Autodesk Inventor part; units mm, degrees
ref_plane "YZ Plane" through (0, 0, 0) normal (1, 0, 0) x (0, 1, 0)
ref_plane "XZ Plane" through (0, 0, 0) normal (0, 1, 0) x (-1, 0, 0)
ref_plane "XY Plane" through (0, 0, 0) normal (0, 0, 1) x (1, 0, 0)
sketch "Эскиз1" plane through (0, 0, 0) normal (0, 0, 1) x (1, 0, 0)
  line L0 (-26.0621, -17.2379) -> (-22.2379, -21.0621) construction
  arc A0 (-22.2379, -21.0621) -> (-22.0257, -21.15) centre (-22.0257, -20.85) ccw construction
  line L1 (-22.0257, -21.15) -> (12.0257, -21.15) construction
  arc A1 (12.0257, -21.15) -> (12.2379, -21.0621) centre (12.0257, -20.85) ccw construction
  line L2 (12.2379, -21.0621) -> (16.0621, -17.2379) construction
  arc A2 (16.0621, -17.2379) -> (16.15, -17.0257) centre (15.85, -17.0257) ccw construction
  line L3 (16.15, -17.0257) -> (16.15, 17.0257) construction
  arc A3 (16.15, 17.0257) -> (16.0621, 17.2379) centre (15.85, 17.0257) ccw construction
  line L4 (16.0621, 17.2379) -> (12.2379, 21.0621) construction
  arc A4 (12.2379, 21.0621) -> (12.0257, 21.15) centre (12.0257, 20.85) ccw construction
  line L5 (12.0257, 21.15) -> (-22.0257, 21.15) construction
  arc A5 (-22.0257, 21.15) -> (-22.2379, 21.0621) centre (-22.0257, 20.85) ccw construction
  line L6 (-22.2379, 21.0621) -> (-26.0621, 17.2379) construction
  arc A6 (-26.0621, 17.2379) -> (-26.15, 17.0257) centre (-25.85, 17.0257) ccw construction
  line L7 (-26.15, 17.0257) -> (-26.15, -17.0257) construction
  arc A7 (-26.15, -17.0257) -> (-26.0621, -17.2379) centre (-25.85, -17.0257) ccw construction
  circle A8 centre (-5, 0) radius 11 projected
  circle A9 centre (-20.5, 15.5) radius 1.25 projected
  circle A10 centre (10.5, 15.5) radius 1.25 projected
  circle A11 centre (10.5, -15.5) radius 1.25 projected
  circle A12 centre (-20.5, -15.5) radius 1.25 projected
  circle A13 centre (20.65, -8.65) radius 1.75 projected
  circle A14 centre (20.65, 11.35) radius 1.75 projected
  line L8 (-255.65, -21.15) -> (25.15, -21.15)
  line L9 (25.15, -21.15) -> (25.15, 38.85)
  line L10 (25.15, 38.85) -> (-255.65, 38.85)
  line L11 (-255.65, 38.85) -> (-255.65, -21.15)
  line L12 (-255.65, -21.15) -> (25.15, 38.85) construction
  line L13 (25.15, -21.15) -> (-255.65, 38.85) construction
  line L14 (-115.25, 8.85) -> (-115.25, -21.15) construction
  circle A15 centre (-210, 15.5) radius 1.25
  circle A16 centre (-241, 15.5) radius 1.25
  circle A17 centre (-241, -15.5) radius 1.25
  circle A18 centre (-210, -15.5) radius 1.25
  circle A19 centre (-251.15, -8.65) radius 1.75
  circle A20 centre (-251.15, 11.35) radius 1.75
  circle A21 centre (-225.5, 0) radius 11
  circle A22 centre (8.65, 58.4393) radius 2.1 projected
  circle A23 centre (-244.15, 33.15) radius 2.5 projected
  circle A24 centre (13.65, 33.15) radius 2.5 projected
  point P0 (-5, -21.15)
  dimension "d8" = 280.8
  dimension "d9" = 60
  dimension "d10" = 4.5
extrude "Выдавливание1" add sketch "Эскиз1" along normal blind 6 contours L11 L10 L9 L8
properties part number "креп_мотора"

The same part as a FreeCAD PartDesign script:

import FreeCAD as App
import Part
import Sketcher

V = App.Vector

doc = App.newDocument("Part")
body = doc.addObject("PartDesign::Body", "Body")

sketch1 = body.newObject("Sketcher::SketchObject", "Sketch")
sketch1.AttachmentSupport = (doc.getObject("XY_Plane"), [""])
sketch1.MapMode = "FlatFace"
sketch1.addGeometry([
    Part.LineSegment(V(-255.7, 38.9, 0), V(-255.7, -21.1, 0)),
    Part.LineSegment(V(-255.7, -21.1, 0), V(25.1, -21.1, 0)),
    Part.LineSegment(V(25.1, -21.1, 0), V(25.1, 38.9, 0)),
    Part.LineSegment(V(25.1, 38.9, 0), V(-255.7, 38.9, 0)),
    Part.Circle(V(-241, -15.5, 0), V(0, 0, 1), 1.2),
    Part.Circle(V(-210, -15.5, 0), V(0, 0, 1), 1.2),
    Part.Circle(V(-251.2, -8.7, 0), V(0, 0, 1), 1.8),
    Part.Circle(V(-225.5, 0, 0), V(0, 0, 1), 11),
    Part.Circle(V(-251.2, 11.3, 0), V(0, 0, 1), 1.8),
    Part.Circle(V(-241, 15.5, 0), V(0, 0, 1), 1.2),
    Part.Circle(V(-210, 15.5, 0), V(0, 0, 1), 1.2),
    Part.Circle(V(-20.5, -15.5, 0), V(0, 0, 1), 1.2),
    Part.Circle(V(10.5, -15.5, 0), V(0, 0, 1), 1.2),
    Part.Circle(V(20.6, -8.7, 0), V(0, 0, 1), 1.8),
    Part.Circle(V(-5, 0, 0), V(0, 0, 1), 11),
    Part.Circle(V(-20.5, 15.5, 0), V(0, 0, 1), 1.2),
    Part.Circle(V(20.6, 11.3, 0), V(0, 0, 1), 1.8),
    Part.Circle(V(10.5, 15.5, 0), V(0, 0, 1), 1.2),
    Part.Circle(V(-244.2, 33.1, 0), V(0, 0, 1), 2.5),
    Part.Circle(V(13.7, 33.1, 0), V(0, 0, 1), 2.5),
], False)
sketch1.addConstraint([
    Sketcher.Constraint("Coincident", 0, 2, 1, 1),
    Sketcher.Constraint("Coincident", 1, 2, 2, 1),
    Sketcher.Constraint("Coincident", 2, 2, 3, 1),
    Sketcher.Constraint("Coincident", 3, 2, 0, 1),
    Sketcher.Constraint("Vertical", 0),
    Sketcher.Constraint("Horizontal", 1),
    Sketcher.Constraint("Vertical", 2),
    Sketcher.Constraint("Horizontal", 3),
    Sketcher.Constraint("Equal", 4, 5),
    Sketcher.Constraint("Equal", 6, 8),
    Sketcher.Constraint("Equal", 5, 9),
    Sketcher.Constraint("Equal", 9, 10),
    Sketcher.Constraint("Equal", 10, 11),
    Sketcher.Constraint("Equal", 11, 12),
    Sketcher.Constraint("Equal", 8, 13),
    Sketcher.Constraint("Equal", 7, 14),
    Sketcher.Constraint("Equal", 12, 15),
    Sketcher.Constraint("Equal", 13, 16),
    Sketcher.Constraint("Equal", 15, 17),
    Sketcher.Constraint("Equal", 18, 19),
    Sketcher.Constraint("Symmetric", 4, 3, 9, 3, -1),
    Sketcher.Constraint("Symmetric", 5, 3, 10, 3, -1),
    Sketcher.Constraint("Symmetric", 11, 3, 15, 3, -1),
    Sketcher.Constraint("Symmetric", 12, 3, 17, 3, -1),
    Sketcher.Constraint("PointOnObject", 7, 3, -1),
    Sketcher.Constraint("PointOnObject", 14, 3, -1),
    Sketcher.Constraint("Horizontal", 4, 3, 5, 3),
    Sketcher.Constraint("Horizontal", 5, 3, 11, 3),
    Sketcher.Constraint("Horizontal", 11, 3, 12, 3),
    Sketcher.Constraint("Horizontal", 6, 3, 13, 3),
    Sketcher.Constraint("Horizontal", 8, 3, 16, 3),
    Sketcher.Constraint("Horizontal", 18, 3, 19, 3),
    Sketcher.Constraint("Vertical", 6, 3, 8, 3),
    Sketcher.Constraint("Vertical", 13, 3, 16, 3),
    Sketcher.Constraint("DistanceY", 0, 2, 0, 1, 60.0),
    Sketcher.Constraint("Diameter", 7, 22.0),
    Sketcher.Constraint("Diameter", 18, 5.0),
    Sketcher.Constraint("DistanceX", 1, 1, 1, 2, 280.8),
    Sketcher.Constraint("Diameter", 4, 2.5),
    Sketcher.Constraint("Diameter", 6, 3.5),
    Sketcher.Constraint("DistanceX", 0, 2, 6, 3, 4.5),
    Sketcher.Constraint("DistanceX", 13, 3, 1, 2, 4.5),
    Sketcher.Constraint("DistanceX", 4, 3, -1, 1, 241.0),
    Sketcher.Constraint("DistanceX", 5, 3, -1, 1, 210.0),
    Sketcher.Constraint("DistanceX", 14, 3, -1, 1, 5.0),
    Sketcher.Constraint("DistanceY", 6, 3, 8, 3, 20.0),
    Sketcher.Constraint("DistanceY", 4, 3, 9, 3, 31.0),
    Sketcher.Constraint("DistanceX", 7, 3, 11, 3, 205.0),
    Sketcher.Constraint("DistanceX", 11, 3, 12, 3, 31.0),
    Sketcher.Constraint("DistanceX", 8, 3, 18, 3, 7.0),
    Sketcher.Constraint("DistanceX", 19, 3, 16, 3, 7.0),
    Sketcher.Constraint("DistanceX", 7, 3, -1, 1, 225.5),
    Sketcher.Constraint("DistanceY", 8, 3, 18, 3, 21.8),
    Sketcher.Constraint("DistanceY", 0, 2, 6, 3, 12.5),
    Sketcher.Constraint("DistanceX", 6, 3, -1, 1, 251.15),
    Sketcher.Constraint("DistanceY", 6, 3, -1, 1, 8.65),
])
pad1 = body.newObject("PartDesign::Pad", "Pad")
pad1.Profile = sketch1
pad1.Length = 6

doc.recompute()
